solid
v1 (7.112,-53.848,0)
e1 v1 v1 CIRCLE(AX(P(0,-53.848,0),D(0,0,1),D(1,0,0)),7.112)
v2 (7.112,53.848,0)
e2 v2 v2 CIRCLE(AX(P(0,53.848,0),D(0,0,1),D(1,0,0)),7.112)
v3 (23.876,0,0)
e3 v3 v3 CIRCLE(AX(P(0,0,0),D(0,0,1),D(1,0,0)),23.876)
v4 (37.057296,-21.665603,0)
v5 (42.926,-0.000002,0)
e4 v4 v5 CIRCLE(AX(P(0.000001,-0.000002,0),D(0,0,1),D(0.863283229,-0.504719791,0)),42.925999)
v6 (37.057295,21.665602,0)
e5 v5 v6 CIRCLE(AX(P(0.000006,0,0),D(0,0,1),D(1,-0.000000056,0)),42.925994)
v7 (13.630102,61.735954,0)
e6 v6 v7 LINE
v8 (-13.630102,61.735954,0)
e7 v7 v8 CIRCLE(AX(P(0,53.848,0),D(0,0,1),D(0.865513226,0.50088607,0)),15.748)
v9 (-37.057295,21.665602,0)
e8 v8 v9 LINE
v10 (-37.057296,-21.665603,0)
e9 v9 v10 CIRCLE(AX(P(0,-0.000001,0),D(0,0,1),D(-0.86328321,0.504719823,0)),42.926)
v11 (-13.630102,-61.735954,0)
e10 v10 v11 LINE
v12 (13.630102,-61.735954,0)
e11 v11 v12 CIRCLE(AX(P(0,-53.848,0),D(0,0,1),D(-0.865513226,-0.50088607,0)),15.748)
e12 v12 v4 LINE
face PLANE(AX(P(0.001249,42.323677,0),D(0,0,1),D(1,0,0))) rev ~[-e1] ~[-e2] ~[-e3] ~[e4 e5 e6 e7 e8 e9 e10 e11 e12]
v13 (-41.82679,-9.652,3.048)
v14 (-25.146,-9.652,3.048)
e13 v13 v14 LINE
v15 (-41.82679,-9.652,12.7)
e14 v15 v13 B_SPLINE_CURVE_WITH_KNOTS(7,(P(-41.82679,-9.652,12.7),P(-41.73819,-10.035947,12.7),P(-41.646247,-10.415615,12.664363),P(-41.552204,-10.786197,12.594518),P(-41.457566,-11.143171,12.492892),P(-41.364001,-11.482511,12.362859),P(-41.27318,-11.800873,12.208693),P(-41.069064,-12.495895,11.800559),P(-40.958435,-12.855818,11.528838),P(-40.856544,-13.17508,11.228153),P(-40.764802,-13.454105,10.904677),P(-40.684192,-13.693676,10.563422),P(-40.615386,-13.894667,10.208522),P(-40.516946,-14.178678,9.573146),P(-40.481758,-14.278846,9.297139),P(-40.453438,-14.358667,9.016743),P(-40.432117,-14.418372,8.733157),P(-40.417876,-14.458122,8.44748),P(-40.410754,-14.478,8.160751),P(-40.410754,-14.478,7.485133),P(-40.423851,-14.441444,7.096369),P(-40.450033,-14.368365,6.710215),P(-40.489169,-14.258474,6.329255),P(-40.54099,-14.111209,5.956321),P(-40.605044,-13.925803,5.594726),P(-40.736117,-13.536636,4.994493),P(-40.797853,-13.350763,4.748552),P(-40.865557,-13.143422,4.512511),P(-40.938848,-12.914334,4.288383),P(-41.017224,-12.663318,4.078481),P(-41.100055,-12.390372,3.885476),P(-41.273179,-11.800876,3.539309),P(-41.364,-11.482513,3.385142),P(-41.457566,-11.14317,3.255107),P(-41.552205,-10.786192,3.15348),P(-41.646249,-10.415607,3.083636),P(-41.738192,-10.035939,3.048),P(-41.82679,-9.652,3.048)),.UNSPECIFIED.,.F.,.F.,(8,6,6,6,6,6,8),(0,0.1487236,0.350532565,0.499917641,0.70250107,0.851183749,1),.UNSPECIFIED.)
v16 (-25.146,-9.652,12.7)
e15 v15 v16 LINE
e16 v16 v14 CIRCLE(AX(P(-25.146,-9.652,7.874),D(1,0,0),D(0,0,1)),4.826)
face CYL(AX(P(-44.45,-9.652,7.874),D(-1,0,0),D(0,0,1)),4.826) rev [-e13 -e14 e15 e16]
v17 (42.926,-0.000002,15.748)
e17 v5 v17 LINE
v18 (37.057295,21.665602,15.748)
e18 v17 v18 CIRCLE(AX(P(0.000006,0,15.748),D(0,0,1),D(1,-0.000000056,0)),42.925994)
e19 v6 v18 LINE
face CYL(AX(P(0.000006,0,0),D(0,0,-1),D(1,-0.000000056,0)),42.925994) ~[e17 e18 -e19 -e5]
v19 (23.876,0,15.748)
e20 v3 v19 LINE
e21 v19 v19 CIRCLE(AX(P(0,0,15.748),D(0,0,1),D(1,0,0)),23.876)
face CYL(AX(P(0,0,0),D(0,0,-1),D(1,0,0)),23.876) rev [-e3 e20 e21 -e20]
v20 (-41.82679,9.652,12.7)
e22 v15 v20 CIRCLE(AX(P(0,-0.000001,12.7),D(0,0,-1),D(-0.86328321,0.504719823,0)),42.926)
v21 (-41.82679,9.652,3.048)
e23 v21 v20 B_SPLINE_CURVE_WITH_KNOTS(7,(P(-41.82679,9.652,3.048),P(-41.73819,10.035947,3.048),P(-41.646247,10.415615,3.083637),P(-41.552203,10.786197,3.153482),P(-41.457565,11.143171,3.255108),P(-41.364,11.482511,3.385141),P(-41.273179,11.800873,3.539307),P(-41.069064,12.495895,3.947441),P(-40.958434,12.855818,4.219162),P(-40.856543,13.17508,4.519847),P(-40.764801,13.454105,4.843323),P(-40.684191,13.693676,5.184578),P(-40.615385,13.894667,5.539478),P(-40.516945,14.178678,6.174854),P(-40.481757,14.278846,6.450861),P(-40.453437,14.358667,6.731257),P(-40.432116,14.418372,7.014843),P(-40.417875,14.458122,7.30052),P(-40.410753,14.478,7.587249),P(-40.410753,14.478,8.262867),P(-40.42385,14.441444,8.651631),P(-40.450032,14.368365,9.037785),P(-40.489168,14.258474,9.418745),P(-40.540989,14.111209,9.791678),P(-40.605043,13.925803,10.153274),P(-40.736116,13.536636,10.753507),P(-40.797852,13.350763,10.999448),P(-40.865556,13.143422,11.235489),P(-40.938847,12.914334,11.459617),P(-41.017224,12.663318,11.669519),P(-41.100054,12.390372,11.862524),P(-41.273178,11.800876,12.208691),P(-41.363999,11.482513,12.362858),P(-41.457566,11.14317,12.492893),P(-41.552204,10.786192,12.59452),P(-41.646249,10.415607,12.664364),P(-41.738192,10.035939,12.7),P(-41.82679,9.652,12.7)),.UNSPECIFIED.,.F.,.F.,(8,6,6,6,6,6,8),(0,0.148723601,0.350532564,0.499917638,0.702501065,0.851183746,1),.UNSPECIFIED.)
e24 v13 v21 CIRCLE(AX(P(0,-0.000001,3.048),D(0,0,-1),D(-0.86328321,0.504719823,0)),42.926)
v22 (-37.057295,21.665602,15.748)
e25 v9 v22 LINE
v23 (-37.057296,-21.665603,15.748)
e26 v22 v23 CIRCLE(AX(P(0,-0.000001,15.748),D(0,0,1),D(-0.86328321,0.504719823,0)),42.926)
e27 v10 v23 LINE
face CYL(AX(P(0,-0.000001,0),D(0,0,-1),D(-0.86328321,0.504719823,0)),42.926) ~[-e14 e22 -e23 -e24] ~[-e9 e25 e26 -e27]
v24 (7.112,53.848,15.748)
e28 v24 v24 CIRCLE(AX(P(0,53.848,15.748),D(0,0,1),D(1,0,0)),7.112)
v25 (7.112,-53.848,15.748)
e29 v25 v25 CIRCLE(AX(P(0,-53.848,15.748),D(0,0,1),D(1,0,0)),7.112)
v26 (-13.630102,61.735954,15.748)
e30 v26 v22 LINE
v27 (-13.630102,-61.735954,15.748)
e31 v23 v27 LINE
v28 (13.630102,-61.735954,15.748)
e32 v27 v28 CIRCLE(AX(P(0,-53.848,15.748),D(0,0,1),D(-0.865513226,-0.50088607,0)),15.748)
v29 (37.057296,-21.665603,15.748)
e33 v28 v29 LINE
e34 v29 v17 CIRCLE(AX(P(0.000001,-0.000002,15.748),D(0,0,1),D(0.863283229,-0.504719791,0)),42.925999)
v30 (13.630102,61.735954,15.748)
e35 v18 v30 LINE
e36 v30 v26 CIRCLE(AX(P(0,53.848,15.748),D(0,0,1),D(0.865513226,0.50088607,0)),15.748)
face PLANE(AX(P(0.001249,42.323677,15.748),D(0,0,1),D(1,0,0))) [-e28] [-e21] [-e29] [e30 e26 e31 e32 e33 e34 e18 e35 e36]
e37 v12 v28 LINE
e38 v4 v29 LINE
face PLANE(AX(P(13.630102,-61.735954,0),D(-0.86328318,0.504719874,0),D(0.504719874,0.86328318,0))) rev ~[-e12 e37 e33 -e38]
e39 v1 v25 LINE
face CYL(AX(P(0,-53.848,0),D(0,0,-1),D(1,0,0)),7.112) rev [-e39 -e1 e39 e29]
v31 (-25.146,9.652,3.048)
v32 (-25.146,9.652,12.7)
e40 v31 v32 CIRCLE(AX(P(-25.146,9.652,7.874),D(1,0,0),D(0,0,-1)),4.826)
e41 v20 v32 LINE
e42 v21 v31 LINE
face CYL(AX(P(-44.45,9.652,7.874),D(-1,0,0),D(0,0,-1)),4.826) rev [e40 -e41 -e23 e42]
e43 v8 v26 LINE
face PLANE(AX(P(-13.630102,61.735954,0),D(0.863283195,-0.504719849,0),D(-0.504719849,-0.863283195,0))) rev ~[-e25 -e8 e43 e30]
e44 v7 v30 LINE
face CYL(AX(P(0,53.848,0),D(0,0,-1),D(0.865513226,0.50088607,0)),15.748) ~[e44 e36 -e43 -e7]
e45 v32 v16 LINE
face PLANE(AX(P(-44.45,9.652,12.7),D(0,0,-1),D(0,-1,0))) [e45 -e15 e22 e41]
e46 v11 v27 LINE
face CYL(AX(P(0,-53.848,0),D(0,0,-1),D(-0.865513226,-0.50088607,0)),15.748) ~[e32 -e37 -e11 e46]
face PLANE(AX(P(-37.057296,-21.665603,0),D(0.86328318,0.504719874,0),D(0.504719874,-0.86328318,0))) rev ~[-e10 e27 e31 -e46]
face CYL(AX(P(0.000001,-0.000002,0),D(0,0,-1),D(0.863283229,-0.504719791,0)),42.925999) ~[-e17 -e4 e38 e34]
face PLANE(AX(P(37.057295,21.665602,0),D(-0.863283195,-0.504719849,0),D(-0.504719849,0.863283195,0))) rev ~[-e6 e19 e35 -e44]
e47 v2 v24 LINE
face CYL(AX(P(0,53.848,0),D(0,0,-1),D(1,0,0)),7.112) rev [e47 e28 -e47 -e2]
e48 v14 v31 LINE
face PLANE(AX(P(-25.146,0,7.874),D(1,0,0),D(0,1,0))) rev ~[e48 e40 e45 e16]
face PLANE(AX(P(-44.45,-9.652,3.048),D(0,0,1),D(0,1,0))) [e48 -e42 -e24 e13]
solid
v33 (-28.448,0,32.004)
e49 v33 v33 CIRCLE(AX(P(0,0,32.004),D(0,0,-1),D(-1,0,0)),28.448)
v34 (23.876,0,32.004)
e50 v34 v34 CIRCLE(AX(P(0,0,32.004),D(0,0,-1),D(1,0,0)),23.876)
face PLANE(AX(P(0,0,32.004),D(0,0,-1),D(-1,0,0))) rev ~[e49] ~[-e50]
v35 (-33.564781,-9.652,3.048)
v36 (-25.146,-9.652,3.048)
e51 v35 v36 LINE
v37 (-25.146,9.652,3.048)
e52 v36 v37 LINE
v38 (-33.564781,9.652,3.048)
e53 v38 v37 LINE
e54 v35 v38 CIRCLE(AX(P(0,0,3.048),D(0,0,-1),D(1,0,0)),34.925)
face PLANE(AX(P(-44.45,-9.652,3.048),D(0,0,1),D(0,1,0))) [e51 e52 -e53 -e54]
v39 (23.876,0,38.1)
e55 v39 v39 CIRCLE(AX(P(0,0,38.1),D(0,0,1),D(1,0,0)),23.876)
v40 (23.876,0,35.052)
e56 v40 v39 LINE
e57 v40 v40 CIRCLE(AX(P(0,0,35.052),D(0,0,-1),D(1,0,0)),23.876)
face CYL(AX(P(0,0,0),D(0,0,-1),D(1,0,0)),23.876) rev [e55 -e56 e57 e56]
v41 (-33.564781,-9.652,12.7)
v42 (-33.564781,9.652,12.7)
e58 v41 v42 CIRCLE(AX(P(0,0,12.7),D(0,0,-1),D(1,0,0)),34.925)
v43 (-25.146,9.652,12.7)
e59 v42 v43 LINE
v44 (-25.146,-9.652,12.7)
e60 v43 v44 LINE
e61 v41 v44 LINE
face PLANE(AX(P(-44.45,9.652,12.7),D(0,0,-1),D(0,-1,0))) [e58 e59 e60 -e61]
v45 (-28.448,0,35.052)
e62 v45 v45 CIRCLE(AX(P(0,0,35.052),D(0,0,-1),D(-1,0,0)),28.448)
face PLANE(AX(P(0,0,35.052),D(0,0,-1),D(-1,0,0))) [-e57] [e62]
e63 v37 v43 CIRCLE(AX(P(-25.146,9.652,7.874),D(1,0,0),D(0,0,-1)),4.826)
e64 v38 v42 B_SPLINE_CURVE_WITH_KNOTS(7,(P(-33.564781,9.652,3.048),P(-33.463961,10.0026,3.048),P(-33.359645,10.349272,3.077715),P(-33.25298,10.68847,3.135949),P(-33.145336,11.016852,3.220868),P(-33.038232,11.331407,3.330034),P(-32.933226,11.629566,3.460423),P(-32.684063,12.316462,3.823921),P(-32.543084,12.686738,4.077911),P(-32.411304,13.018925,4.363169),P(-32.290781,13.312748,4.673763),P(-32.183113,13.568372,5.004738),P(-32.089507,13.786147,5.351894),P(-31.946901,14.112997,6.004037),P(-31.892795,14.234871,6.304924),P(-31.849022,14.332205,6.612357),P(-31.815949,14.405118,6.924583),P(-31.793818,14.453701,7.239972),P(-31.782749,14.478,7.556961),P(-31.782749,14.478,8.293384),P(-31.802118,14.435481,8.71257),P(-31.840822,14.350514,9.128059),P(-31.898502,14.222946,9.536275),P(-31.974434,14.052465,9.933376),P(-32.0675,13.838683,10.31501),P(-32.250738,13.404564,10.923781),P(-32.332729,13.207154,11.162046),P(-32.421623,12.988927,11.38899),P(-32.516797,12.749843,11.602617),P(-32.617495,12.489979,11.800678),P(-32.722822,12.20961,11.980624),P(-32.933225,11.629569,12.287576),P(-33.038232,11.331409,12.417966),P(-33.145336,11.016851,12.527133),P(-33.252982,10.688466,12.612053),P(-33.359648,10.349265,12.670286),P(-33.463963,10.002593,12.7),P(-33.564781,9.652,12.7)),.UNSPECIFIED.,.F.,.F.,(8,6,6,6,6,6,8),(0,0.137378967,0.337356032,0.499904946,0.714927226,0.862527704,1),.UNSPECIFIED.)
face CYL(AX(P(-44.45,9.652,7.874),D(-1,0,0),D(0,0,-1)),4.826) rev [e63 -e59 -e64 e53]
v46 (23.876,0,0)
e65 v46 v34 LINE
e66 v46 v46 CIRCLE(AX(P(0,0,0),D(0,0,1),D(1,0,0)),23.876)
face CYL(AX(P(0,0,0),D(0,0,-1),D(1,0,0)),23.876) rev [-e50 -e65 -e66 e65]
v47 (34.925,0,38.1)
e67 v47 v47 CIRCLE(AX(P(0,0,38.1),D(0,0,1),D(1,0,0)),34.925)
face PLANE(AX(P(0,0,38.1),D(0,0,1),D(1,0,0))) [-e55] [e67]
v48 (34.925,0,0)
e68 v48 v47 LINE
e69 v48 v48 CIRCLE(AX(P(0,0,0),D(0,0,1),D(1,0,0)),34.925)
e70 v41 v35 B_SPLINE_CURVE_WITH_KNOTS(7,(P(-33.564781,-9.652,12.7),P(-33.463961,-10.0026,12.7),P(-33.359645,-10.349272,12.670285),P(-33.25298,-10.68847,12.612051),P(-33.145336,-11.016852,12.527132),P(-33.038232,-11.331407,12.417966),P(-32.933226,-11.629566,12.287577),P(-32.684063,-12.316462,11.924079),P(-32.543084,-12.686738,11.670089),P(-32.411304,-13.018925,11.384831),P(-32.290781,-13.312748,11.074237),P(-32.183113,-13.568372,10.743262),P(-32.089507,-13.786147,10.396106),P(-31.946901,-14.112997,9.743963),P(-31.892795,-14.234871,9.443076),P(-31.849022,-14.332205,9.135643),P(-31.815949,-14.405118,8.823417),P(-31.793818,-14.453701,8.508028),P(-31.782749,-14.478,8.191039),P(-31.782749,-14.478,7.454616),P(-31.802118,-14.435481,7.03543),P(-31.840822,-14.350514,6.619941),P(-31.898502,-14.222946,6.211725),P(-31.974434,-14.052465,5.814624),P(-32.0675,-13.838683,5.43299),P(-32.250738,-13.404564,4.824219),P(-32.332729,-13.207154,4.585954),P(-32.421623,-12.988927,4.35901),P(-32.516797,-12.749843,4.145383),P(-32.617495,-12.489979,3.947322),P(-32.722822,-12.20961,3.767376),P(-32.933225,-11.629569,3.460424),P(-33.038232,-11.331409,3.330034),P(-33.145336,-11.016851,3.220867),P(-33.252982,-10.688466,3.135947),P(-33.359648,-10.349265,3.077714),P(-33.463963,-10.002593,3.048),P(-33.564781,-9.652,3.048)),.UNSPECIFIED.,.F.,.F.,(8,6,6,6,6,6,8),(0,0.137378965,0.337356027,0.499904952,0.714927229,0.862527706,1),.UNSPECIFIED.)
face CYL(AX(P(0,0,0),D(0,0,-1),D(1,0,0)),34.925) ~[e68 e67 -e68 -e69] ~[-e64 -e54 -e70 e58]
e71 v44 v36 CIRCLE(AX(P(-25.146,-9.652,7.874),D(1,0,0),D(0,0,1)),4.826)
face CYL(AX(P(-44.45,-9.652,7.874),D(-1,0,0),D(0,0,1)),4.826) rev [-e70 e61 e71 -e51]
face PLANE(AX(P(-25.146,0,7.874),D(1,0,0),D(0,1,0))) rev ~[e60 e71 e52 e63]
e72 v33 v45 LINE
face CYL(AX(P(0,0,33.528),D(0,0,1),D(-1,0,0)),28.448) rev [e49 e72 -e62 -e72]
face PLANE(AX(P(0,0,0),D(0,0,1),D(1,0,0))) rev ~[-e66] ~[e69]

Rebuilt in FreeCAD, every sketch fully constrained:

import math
import FreeCAD as App
import Part
import Sketcher
Q = App.Units.Quantity


def add_polygon(sketch, points):
    """Adds a closed chain of lines whose ends are joined by coincident constraints."""
    first, n = sketch.GeometryCount, len(points)
    for a, b in zip(points, points[1:] + points[:1]):
        sketch.addGeometry(Part.LineSegment(App.Vector(*a, 0), App.Vector(*b, 0)), False)
    for i in range(n):
        sketch.addConstraint(Sketcher.Constraint("Coincident", first + i, 2, first + (i + 1) % n, 1))

doc = App.newDocument("Part")
params = doc.addObject("Spreadsheet::Sheet", "Params")
for row, (alias, value) in enumerate([
    ("sketch1_diameter", "0.56 in"),
    ("sketch1_diameter2", "1.88 in"),
    ("sketch1_radius", "0.62 in"),
    ("sketch1_radius2", "1.69 in"),
    ("pad1_length", "0.62 in"),
    ("sketch2_diameter", "2.75 in"),
    ("sketch2_diameter2", "1.88 in"),
    ("pad2_length", "1.5 in"),
    ("sketch3_width", "1.12 in"),
    ("sketch3_height", "0.12 in"),
    ("groove_angle", "360 deg"),
    ("sketch4_radius", "0.19 in"),
    ("sketch4_width", "0.76 in"),
    ("pad3_length", "0.76 in"),
], start=1):
    params.set(f"A{row}", alias)
    params.set(f"B{row}", "=" + value)
    params.setAlias(f"B{row}", alias)

body = doc.addObject("PartDesign::Body", "Body")

sketch1 = body.newObject("Sketcher::SketchObject", "Sketch")
sketch1.AttachmentSupport = (doc.getObject("XY_Plane"), [""])
sketch1.MapMode = "FlatFace"
sketch1.addGeometry(Part.LineSegment(App.Vector(37.057295, 21.665602, 0), App.Vector(13.630102, 61.735954, 0)), False)
sketch1.addGeometry(Part.ArcOfCircle(Part.Circle(App.Vector(0, 53.848, 0), App.Vector(0, 0, 1), 15.748), math.radians(30.058639), math.radians(149.941361)), False)
sketch1.addGeometry(Part.LineSegment(App.Vector(-13.630102, 61.735954, 0), App.Vector(-37.057295, 21.665602, 0)), False)
sketch1.addGeometry(Part.ArcOfCircle(Part.Circle(App.Vector(0, -0.000001, 0), App.Vector(0, 0, 1), 42.926), math.radians(149.687245), math.radians(210.312753)), False)
sketch1.addGeometry(Part.LineSegment(App.Vector(-37.057296, -21.665603, 0), App.Vector(-13.630102, -61.735954, 0)), False)
sketch1.addGeometry(Part.ArcOfCircle(Part.Circle(App.Vector(0, -53.848, 0), App.Vector(0, 0, 1), 15.748), math.radians(-149.941361), math.radians(-30.058639)), False)
sketch1.addGeometry(Part.LineSegment(App.Vector(13.630102, -61.735954, 0), App.Vector(37.057296, -21.665603, 0)), False)
sketch1.addGeometry(Part.ArcOfCircle(Part.Circle(App.Vector(0.000001, -0.000002, 0), App.Vector(0, 0, 1), 42.925999), math.radians(-30.312753), math.radians(0)), False)
sketch1.addGeometry(Part.ArcOfCircle(Part.Circle(App.Vector(0.000006, 0, 0), App.Vector(0, 0, 1), 42.925994), math.radians(-0.000003), math.radians(30.312758)), False)
sketch1.addGeometry(Part.Circle(App.Vector(0, -53.848, 0), App.Vector(0, 0, 1), 7.112), False)
sketch1.addGeometry(Part.Circle(App.Vector(0, 0, 0), App.Vector(0, 0, 1), 23.876), False)
sketch1.addGeometry(Part.Circle(App.Vector(0, 53.848, 0), App.Vector(0, 0, 1), 7.112), False)
sketch1.addConstraint(Sketcher.Constraint("Coincident", 0, 2, 1, 1))
sketch1.addConstraint(Sketcher.Constraint("Coincident", 1, 2, 2, 1))
sketch1.addConstraint(Sketcher.Constraint("Tangent", 2, 2, 3, 1))
sketch1.addConstraint(Sketcher.Constraint("Tangent", 3, 2, 4, 1))
sketch1.addConstraint(Sketcher.Constraint("Coincident", 4, 2, 5, 1))
sketch1.addConstraint(Sketcher.Constraint("Coincident", 5, 2, 6, 1))
sketch1.addConstraint(Sketcher.Constraint("Tangent", 6, 2, 7, 1))
sketch1.addConstraint(Sketcher.Constraint("Tangent", 7, 2, 8, 1))
sketch1.addConstraint(Sketcher.Constraint("Tangent", 8, 2, 0, 1))
sketch1.addConstraint(Sketcher.Constraint("Coincident", 3, 3, -1, 1))
sketch1.addConstraint(Sketcher.Constraint("Coincident", 7, 3, -1, 1))
sketch1.addConstraint(Sketcher.Constraint("Coincident", 10, 3, -1, 1))
sketch1.addConstraint(Sketcher.Constraint("Coincident", 9, 3, 5, 3))
sketch1.addConstraint(Sketcher.Constraint("Coincident", 11, 3, 1, 3))
sketch1.addConstraint(Sketcher.Constraint("Equal", 1, 5))
sketch1.addConstraint(Sketcher.Constraint("Equal", 3, 7))
sketch1.addConstraint(Sketcher.Constraint("Equal", 9, 11))
sketch1.addConstraint(Sketcher.Constraint("Symmetric", 1, 3, 5, 3, -1, 1))
sketch1.addConstraint(Sketcher.Constraint("Symmetric", 0, 2, 1, 2, -2))
sketch1.addConstraint(Sketcher.Constraint("Parallel", 0, 4))
sketch1.addConstraint(Sketcher.Constraint("Parallel", 2, 6))
sketch1.addConstraint(Sketcher.Constraint("Horizontal", 4, 2, 5, 2))
sketch1.addConstraint(Sketcher.Constraint("Horizontal", 3, 3, 7, 2))
sketch1.addConstraint(Sketcher.Constraint("Diameter", 9, Q("0.56 in")))
sketch1.addConstraint(Sketcher.Constraint("Diameter", 10, Q("1.88 in")))
sketch1.addConstraint(Sketcher.Constraint("Radius", 1, Q("0.62 in")))
sketch1.addConstraint(Sketcher.Constraint("Radius", 3, Q("1.69 in")))
sketch1.addConstraint(Sketcher.Constraint("DistanceY", -1, 1, 1, 3, Q("2.12 in")))
sketch1.addConstraint(Sketcher.Constraint("DistanceX", 3, 3, 0, 2, 13.630102))
sketch1.setExpression("Constraints[23]", "Params.sketch1_diameter")
sketch1.setExpression("Constraints[24]", "Params.sketch1_diameter2")
sketch1.setExpression("Constraints[25]", "Params.sketch1_radius")
sketch1.setExpression("Constraints[26]", "Params.sketch1_radius2")
pad1 = body.newObject("PartDesign::Pad", "Pad")
pad1.Profile = sketch1
pad1.setExpression("Length", "Params.pad1_length")
body2 = doc.addObject("PartDesign::Body", "Body001")

sketch2 = body2.newObject("Sketcher::SketchObject", "Sketch001")
sketch2.AttachmentSupport = (doc.getObject("XY_Plane001"), [""])
sketch2.MapMode = "FlatFace"
sketch2.addGeometry(Part.Circle(App.Vector(0, 0, 0), App.Vector(0, 0, 1), 34.925), False)
sketch2.addGeometry(Part.Circle(App.Vector(0, 0, 0), App.Vector(0, 0, 1), 23.876), False)
sketch2.addConstraint(Sketcher.Constraint("Coincident", 0, 3, -1, 1))
sketch2.addConstraint(Sketcher.Constraint("Coincident", 1, 3, -1, 1))
sketch2.addConstraint(Sketcher.Constraint("Diameter", 0, Q("2.75 in")))
sketch2.addConstraint(Sketcher.Constraint("Diameter", 1, Q("1.88 in")))
sketch2.setExpression("Constraints[2]", "Params.sketch2_diameter")
sketch2.setExpression("Constraints[3]", "Params.sketch2_diameter2")
pad2 = body2.newObject("PartDesign::Pad", "Pad001")
pad2.Profile = sketch2
pad2.setExpression("Length", "Params.pad2_length")

sketch3 = body2.newObject("Sketcher::SketchObject", "Sketch002")
sketch3.AttachmentSupport = (doc.getObject("XZ_Plane001"), [""])
sketch3.MapMode = "FlatFace"
add_polygon(sketch3, [(-28.448, 35.052), (-28.448, 32.004), (0, 32.004), (0, 35.052)])
sketch3.addConstraint(Sketcher.Constraint("Vertical", 0))
sketch3.addConstraint(Sketcher.Constraint("Horizontal", 1))
sketch3.addConstraint(Sketcher.Constraint("Vertical", 2))
sketch3.addConstraint(Sketcher.Constraint("Horizontal", 3))
sketch3.addConstraint(Sketcher.Constraint("PointOnObject", 1, 2, -2))
sketch3.addConstraint(Sketcher.Constraint("DistanceX", 1, 1, 1, 2, Q("1.12 in")))
sketch3.addConstraint(Sketcher.Constraint("DistanceY", 0, 2, 0, 1, Q("0.12 in")))
sketch3.addConstraint(Sketcher.Constraint("DistanceY", -1, 1, 0, 2, Q("1.26 in")))
sketch3.setExpression("Constraints[9]", "Params.sketch3_width")
sketch3.setExpression("Constraints[10]", "Params.sketch3_height")
groove = body2.newObject("PartDesign::Groove", "Groove")
groove.Profile = sketch3
groove.ReferenceAxis = (sketch3, ["V_Axis"])
groove.setExpression("Angle", "Params.groove_angle")
body3 = doc.addObject("PartDesign::Body", "Body002")

sketch4 = body3.newObject("Sketcher::SketchObject", "Sketch003")
sketch4.AttachmentSupport = (doc.getObject("YZ_Plane002"), [""])
sketch4.MapMode = "FlatFace"
sketch4.AttachmentOffset = App.Placement(App.Vector(0, 0, -1.75 * 25.4), App.Rotation())
sketch4.addGeometry(Part.LineSegment(App.Vector(9.652, 12.7, 0), App.Vector(-9.652, 12.7, 0)), False)
sketch4.addGeometry(Part.ArcOfCircle(Part.Circle(App.Vector(-9.652, 7.874, 0), App.Vector(0, 0, 1), 4.826), math.radians(90), math.radians(270)), False)
sketch4.addGeometry(Part.LineSegment(App.Vector(-9.652, 3.048, 0), App.Vector(9.652, 3.048, 0)), False)
sketch4.addGeometry(Part.ArcOfCircle(Part.Circle(App.Vector(9.652, 7.874, 0), App.Vector(0, 0, 1), 4.826), math.radians(-90), math.radians(90)), False)
sketch4.addConstraint(Sketcher.Constraint("Tangent", 0, 2, 1, 1))
sketch4.addConstraint(Sketcher.Constraint("Tangent", 1, 2, 2, 1))
sketch4.addConstraint(Sketcher.Constraint("Tangent", 2, 2, 3, 1))
sketch4.addConstraint(Sketcher.Constraint("Tangent", 3, 2, 0, 1))
sketch4.addConstraint(Sketcher.Constraint("Horizontal", 0))
sketch4.addConstraint(Sketcher.Constraint("Horizontal", 2))
sketch4.addConstraint(Sketcher.Constraint("Radius", 1, Q("0.19 in")))
sketch4.addConstraint(Sketcher.Constraint("DistanceX", 0, 2, 0, 1, Q("0.76 in")))
sketch4.addConstraint(Sketcher.Constraint("DistanceY", -1, 1, 0, 2, Q("0.5 in")))
sketch4.addConstraint(Sketcher.Constraint("DistanceX", 1, 3, -1, 1, Q("0.38 in")))
sketch4.setExpression("Constraints[6]", "Params.sketch4_radius")
sketch4.setExpression("Constraints[7]", "Params.sketch4_width")
pad3 = body3.newObject("PartDesign::Pad", "Pad002")
pad3.Profile = sketch4
pad3.setExpression("Length", "Params.pad3_length")
doc.recompute()

body4 = doc.addObject("PartDesign::Body", "Body003")
body4.BaseFeature = body3
boolean = body.newObject("PartDesign::Boolean", "Boolean")
boolean.Type = "Cut"
boolean.addObjects([body4])
doc.recompute()

boolean2 = body2.newObject("PartDesign::Boolean", "Boolean001")
boolean2.Type = "Cut"
boolean2.addObjects([body3])

doc.recompute()
